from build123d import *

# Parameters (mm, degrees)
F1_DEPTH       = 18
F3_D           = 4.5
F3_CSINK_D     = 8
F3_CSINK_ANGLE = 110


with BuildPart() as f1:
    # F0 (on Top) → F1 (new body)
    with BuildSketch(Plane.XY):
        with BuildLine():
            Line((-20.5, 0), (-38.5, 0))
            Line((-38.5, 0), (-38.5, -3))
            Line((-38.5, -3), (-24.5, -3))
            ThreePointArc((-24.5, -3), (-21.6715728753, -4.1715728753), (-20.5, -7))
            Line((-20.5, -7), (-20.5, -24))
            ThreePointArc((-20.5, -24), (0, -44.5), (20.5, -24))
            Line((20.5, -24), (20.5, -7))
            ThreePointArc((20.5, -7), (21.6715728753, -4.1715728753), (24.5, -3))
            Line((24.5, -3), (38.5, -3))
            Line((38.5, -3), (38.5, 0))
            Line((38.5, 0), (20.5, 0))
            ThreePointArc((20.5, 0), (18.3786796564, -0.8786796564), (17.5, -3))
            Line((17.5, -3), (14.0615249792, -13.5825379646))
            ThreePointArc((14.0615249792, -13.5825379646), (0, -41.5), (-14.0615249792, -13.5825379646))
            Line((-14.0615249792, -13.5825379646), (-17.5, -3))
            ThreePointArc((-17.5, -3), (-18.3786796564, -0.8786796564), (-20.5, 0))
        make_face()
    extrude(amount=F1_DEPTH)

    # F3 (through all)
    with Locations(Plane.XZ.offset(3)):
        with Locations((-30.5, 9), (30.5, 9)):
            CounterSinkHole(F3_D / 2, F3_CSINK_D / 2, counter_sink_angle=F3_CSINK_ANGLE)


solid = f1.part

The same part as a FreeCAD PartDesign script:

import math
import FreeCAD as App
import Part
import Sketcher

V = App.Vector
Q = App.Units.Quantity

doc = App.newDocument("Part")
body = doc.addObject("PartDesign::Body", "Body")

sketch1 = body.newObject("Sketcher::SketchObject", "Sketch")
sketch1.AttachmentSupport = (doc.getObject("XY_Plane"), [""])
sketch1.MapMode = "FlatFace"
sketch1.addGeometry([
    Part.LineSegment(V(-20.5, 0, 0), V(-38.5, 0, 0)),
    Part.LineSegment(V(-38.5, 0, 0), V(-38.5, -3, 0)),
    Part.LineSegment(V(-38.5, -3, 0), V(-24.5, -3, 0)),
    Part.ArcOfCircle(Part.Circle(V(-24.5, -7, 0), V(0, 0, 1), 4), math.radians(0), math.radians(90)),
    Part.LineSegment(V(-20.5, -7, 0), V(-20.5, -24, 0)),
    Part.ArcOfCircle(Part.Circle(V(0, -24, 0), V(0, 0, 1), 20.5), math.radians(180), math.radians(360)),
    Part.LineSegment(V(20.5, -24, 0), V(20.5, -7, 0)),
    Part.ArcOfCircle(Part.Circle(V(24.5, -7, 0), V(0, 0, 1), 4), math.radians(90), math.radians(180)),
    Part.LineSegment(V(24.5, -3, 0), V(38.5, -3, 0)),
    Part.LineSegment(V(38.5, -3, 0), V(38.5, 0, 0)),
    Part.LineSegment(V(38.5, 0, 0), V(20.5, 0, 0)),
    Part.ArcOfCircle(Part.Circle(V(20.5, -3, 0), V(0, 0, 1), 3), math.radians(90), math.radians(180)),
    Part.LineSegment(V(17.5, -3, 0), V(14.1, -13.6, 0)),
    Part.ArcOfCircle(Part.Circle(V(0, -24, 0), V(0, 0, 1), 17.5), math.radians(143), math.radians(397)),
    Part.LineSegment(V(-14.1, -13.6, 0), V(-17.5, -3, 0)),
    Part.ArcOfCircle(Part.Circle(V(-20.5, -3, 0), V(0, 0, 1), 3), math.radians(0), math.radians(90)),
], False)
sketch1.addConstraint([
    Sketcher.Constraint("Coincident", 0, 2, 1, 1),
    Sketcher.Constraint("Coincident", 1, 2, 2, 1),
    Sketcher.Constraint("Tangent", 2, 2, 3, 2),
    Sketcher.Constraint("Tangent", 3, 1, 4, 1),
    Sketcher.Constraint("Tangent", 4, 2, 5, 1),
    Sketcher.Constraint("Tangent", 5, 2, 6, 1),
    Sketcher.Constraint("Tangent", 6, 2, 7, 2),
    Sketcher.Constraint("Tangent", 7, 1, 8, 1),
    Sketcher.Constraint("Coincident", 8, 2, 9, 1),
    Sketcher.Constraint("Coincident", 9, 2, 10, 1),
    Sketcher.Constraint("Tangent", 10, 2, 11, 1),
    Sketcher.Constraint("Coincident", 11, 2, 12, 1),
    Sketcher.Constraint("Coincident", 12, 2, 13, 2),
    Sketcher.Constraint("Coincident", 13, 1, 14, 1),
    Sketcher.Constraint("Coincident", 14, 2, 15, 1),
    Sketcher.Constraint("Tangent", 15, 2, 0, 1),
    Sketcher.Constraint("Horizontal", 0),
    Sketcher.Constraint("Vertical", 1),
    Sketcher.Constraint("Horizontal", 2),
    Sketcher.Constraint("Vertical", 4),
    Sketcher.Constraint("Vertical", 6),
    Sketcher.Constraint("Horizontal", 8),
    Sketcher.Constraint("Vertical", 9),
    Sketcher.Constraint("Horizontal", 10),
    Sketcher.Constraint("Coincident", 13, 3, 5, 3),
    Sketcher.Constraint("Equal", 3, 7),
    Sketcher.Constraint("Equal", 11, 15),
    Sketcher.Constraint("Symmetric", 0, 2, 9, 2, -1, 1),
    Sketcher.Constraint("Symmetric", 3, 3, 7, 3, -2),
    Sketcher.Constraint("Symmetric", 11, 3, 15, 3, -2),
    Sketcher.Constraint("Horizontal", 15, 3, 1, 2),
    Sketcher.Constraint("Horizontal", 8, 2, 11, 2),
    Sketcher.Constraint("Horizontal", 12, 2, 13, 1),
    Sketcher.Constraint("Horizontal", 11, 2, 14, 2),
    Sketcher.Constraint("Vertical", 15, 3, 3, 1),
    Sketcher.Constraint("Radius", 3, Q("4 mm")),
    Sketcher.Constraint("Radius", 11, Q("3 mm")),
    Sketcher.Constraint("Radius", 5, Q("20.5 mm")),
    Sketcher.Constraint("Radius", 13, Q("17.5 mm")),
    Sketcher.Constraint("DistanceX", 0, 2, 0, 1, Q("18 mm")),
    Sketcher.Constraint("DistanceY", 4, 2, 4, 1, Q("17 mm")),
    Sketcher.Constraint("Angle", 12, Q("-108 deg")),
])
pad1 = body.newObject("PartDesign::Pad", "Pad")
pad1.Profile = sketch1
pad1.Length = 18

sketch2 = body.newObject("Sketcher::SketchObject", "Sketch001")
sketch2.AttachmentSupport = (doc.getObject("XZ_Plane"), [""])
sketch2.MapMode = "FlatFace"
sketch2.AttachmentOffset = App.Placement(V(0, 0, 3), App.Rotation())
sketch2.addGeometry([
    Part.Circle(V(-30.5, 9, 0), V(0, 0, 1), 2.2),
    Part.Circle(V(30.5, 9, 0), V(0, 0, 1), 2.2),
], False)
sketch2.addConstraint([
    Sketcher.Constraint("Equal", 0, 1),
    Sketcher.Constraint("Symmetric", 0, 3, 1, 3, -2),
    Sketcher.Constraint("Diameter", 0, Q("4.5 mm")),
    Sketcher.Constraint("DistanceY", -1, 1, 0, 3, Q("9 mm")),
    Sketcher.Constraint("DistanceX", 0, 3, 1, 3, Q("61 mm")),
])
doc.recompute()
hole = body.newObject("PartDesign::Hole", "Hole")
hole.Profile = sketch2
hole.ThreadType = "None"
hole.Diameter = 4.5
hole.DepthType = "ThroughAll"
hole.HoleCutType = "Countersink"
hole.HoleCutDiameter = 8
hole.HoleCutCountersinkAngle = 110

doc.recompute()
